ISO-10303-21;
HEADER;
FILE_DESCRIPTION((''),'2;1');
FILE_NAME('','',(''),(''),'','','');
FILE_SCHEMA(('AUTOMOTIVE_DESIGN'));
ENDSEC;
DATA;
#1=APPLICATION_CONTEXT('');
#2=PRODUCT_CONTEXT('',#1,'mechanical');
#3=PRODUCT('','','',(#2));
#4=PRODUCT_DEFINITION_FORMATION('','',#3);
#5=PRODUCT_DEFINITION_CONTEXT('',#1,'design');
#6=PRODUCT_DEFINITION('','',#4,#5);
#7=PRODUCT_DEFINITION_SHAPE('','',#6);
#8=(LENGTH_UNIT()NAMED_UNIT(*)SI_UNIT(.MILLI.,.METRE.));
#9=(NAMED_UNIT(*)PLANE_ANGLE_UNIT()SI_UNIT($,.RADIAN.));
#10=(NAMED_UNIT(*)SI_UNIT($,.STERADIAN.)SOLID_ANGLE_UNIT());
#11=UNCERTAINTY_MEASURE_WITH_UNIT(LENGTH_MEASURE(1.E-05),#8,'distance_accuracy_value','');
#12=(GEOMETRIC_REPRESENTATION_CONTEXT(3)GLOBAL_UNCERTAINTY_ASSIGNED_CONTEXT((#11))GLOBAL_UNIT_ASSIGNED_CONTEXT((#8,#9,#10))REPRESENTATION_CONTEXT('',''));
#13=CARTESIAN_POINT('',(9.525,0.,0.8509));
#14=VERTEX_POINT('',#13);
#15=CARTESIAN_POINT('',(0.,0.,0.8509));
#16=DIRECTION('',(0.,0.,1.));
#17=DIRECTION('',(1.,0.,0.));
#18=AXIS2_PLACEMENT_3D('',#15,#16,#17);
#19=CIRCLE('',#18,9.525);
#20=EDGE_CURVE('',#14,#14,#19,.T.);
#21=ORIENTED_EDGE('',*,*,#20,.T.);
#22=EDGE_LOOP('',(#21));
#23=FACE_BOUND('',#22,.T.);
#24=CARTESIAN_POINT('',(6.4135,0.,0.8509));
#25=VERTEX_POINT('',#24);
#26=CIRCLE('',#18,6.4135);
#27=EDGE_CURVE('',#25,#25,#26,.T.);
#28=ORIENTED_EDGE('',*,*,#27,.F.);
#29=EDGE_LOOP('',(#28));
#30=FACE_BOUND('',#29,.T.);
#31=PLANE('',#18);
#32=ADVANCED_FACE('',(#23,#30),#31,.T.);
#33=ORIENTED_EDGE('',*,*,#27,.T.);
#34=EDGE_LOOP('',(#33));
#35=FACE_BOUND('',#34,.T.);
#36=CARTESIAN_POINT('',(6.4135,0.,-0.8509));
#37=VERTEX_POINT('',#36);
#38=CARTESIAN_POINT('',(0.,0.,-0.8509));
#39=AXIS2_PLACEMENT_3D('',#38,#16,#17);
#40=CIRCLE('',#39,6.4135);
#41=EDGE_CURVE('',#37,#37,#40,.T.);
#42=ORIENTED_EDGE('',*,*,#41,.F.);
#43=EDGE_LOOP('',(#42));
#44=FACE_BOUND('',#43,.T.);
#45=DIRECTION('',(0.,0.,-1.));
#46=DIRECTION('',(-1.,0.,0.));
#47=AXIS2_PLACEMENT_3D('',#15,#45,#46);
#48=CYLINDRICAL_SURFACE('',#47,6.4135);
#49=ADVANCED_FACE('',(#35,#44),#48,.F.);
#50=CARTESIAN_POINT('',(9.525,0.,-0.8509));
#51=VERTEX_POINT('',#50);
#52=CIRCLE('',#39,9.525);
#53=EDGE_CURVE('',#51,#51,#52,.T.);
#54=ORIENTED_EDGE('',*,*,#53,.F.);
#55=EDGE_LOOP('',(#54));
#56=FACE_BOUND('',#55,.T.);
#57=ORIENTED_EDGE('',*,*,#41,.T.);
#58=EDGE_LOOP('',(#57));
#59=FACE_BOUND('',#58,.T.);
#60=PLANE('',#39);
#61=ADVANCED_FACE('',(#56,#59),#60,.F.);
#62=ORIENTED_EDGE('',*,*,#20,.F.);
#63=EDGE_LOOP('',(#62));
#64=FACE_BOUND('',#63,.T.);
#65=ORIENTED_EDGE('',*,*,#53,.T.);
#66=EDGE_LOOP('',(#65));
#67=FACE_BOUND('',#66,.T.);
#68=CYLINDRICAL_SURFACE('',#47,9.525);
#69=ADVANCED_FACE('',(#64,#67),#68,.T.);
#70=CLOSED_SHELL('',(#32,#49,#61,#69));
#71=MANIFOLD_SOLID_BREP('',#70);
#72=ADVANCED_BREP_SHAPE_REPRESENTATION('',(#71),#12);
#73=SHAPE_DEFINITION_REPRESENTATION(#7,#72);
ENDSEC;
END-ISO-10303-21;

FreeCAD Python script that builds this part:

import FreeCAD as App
import Part
import Sketcher
Q = App.Units.Quantity

doc = App.newDocument("Part")
body = doc.addObject("PartDesign::Body", "Body")

sketch1 = body.newObject("Sketcher::SketchObject", "Sketch")
sketch1.AttachmentSupport = (doc.getObject("XY_Plane"), [""])
sketch1.MapMode = "FlatFace"
sketch1.addGeometry(Part.Circle(App.Vector(0, 0, 0), App.Vector(0, 0, 1), 10), False)
sketch1.addGeometry(Part.Circle(App.Vector(0, 0, 0), App.Vector(0, 0, 1), 6), False)
sketch1.addConstraint(Sketcher.Constraint("Coincident", 0, 3, -1, 1))
sketch1.addConstraint(Sketcher.Constraint("Coincident", 1, 3, -1, 1))
sketch1.addConstraint(Sketcher.Constraint("Diameter", 0, Q("0.75 in")))
sketch1.addConstraint(Sketcher.Constraint("Diameter", 1, Q("0.505 in")))
pad1 = body.newObject("PartDesign::Pad", "Pad")
pad1.Profile = sketch1
pad1.Type = "TwoLengths"
pad1.Length = Q("0.0335 in")
pad1.Length2 = Q("0.0335 in")

doc.recompute()
